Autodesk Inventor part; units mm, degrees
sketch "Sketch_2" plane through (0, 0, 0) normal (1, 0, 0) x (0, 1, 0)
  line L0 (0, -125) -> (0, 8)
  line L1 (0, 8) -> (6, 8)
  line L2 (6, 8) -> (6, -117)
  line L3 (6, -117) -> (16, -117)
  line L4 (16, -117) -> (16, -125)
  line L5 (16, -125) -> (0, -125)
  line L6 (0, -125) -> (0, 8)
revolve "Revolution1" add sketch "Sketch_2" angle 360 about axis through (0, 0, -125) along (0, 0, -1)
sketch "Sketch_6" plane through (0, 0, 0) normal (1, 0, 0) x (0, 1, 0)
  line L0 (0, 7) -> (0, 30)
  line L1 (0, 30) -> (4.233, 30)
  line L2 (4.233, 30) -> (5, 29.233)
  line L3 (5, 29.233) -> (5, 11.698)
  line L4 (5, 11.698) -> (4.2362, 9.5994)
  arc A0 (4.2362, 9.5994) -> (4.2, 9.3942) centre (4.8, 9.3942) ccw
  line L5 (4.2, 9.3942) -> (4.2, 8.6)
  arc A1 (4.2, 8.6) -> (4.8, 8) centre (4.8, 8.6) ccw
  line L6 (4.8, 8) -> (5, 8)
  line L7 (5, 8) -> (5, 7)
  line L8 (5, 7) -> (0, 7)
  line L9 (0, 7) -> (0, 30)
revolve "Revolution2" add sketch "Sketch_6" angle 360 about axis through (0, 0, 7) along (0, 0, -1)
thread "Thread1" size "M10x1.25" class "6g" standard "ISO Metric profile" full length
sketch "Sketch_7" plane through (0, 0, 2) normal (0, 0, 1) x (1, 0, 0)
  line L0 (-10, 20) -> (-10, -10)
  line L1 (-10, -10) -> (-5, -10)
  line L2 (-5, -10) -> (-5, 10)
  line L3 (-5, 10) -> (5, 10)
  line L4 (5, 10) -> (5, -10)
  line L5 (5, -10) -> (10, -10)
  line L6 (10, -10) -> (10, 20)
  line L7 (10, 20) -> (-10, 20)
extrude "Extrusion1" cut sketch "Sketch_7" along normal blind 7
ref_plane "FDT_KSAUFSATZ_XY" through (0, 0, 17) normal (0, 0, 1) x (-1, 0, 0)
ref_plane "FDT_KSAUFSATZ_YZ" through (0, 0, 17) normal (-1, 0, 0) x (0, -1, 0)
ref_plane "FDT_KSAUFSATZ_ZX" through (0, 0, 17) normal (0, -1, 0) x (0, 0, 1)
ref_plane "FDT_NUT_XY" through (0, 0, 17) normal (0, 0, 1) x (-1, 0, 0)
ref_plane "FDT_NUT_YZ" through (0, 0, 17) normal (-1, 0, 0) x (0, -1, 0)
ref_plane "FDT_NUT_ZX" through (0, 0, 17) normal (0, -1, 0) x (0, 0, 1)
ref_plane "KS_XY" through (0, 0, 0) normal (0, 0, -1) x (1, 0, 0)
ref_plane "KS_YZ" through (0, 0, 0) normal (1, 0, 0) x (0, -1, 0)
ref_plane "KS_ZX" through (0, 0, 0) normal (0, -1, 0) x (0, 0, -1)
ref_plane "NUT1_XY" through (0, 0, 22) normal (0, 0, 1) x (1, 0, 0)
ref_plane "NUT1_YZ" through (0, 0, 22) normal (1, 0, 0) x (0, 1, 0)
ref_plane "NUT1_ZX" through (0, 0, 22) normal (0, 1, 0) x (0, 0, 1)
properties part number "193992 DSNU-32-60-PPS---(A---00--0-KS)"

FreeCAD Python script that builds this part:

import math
import FreeCAD as App
import Part
import Sketcher
from FreeCAD import Vector
Q = App.Units.Quantity

doc = App.newDocument("Part")
body = doc.addObject("PartDesign::Body", "Body")

# Sketch on YZ plane
sketch1 = doc.addObject("Sketcher::SketchObject", "Sketch")
body.addObject(sketch1)
sketch1.AttachmentSupport = (doc.YZ_Plane, [""])
sketch1.MapMode = "FlatFace"
sketch1.addGeometry([
    Part.LineSegment(Vector(0, 8, 0), Vector(0, -125, 0)),  # 0
    Part.LineSegment(Vector(0, -125, 0), Vector(16, -125, 0)),  # 1
    Part.LineSegment(Vector(16, -125, 0), Vector(16, -117, 0)),  # 2
    Part.LineSegment(Vector(16, -117, 0), Vector(6, -117, 0)),  # 3
    Part.LineSegment(Vector(6, -117, 0), Vector(6, 8, 0)),  # 4
    Part.LineSegment(Vector(6, 8, 0), Vector(0, 8, 0)),  # 5
], False)
sketch1.addConstraint([
    Sketcher.Constraint("Coincident", 0, 2, 1, 1),
    Sketcher.Constraint("Coincident", 1, 2, 2, 1),
    Sketcher.Constraint("Coincident", 2, 2, 3, 1),
    Sketcher.Constraint("Coincident", 3, 2, 4, 1),
    Sketcher.Constraint("Coincident", 4, 2, 5, 1),
    Sketcher.Constraint("Coincident", 5, 2, 0, 1),
    Sketcher.Constraint("Vertical", 0),
    Sketcher.Constraint("Horizontal", 1),
    Sketcher.Constraint("Vertical", 2),
    Sketcher.Constraint("Horizontal", 3),
    Sketcher.Constraint("Vertical", 4),
    Sketcher.Constraint("Horizontal", 5),
    Sketcher.Constraint("PointOnObject", 0, 2, -2),
    Sketcher.Constraint("DistanceX", 1, 1, 1, 2, 16.0),
    Sketcher.Constraint("DistanceX", 3, 2, 3, 1, 10.0),
    Sketcher.Constraint("DistanceY", 0, 2, 0, 1, 133.0),
    Sketcher.Constraint("DistanceY", 2, 1, 2, 2, 8.0),
    Sketcher.Constraint("DistanceY", 0, 2, -1, 1, 125.0),
])
revolution = doc.addObject("PartDesign::Revolution", "Revolution")
body.addObject(revolution)
revolution.Profile = sketch1
revolution.ReferenceAxis = (sketch1, ["V_Axis"])
revolution.Angle = 360

# Sketch on YZ plane
sketch2 = doc.addObject("Sketcher::SketchObject", "Sketch001")
body.addObject(sketch2)
sketch2.AttachmentSupport = (doc.YZ_Plane, [""])
sketch2.MapMode = "FlatFace"
sketch2.addGeometry([
    Part.LineSegment(Vector(0, 30, 0), Vector(0, 7, 0)),  # 0
    Part.LineSegment(Vector(0, 7, 0), Vector(5, 7, 0)),  # 1
    Part.LineSegment(Vector(5, 7, 0), Vector(5, 8, 0)),  # 2
    Part.LineSegment(Vector(5, 8, 0), Vector(4.8, 8, 0)),  # 3
    Part.ArcOfCircle(Part.Circle(Vector(4.8, 8.6, 0), Vector(0, 0, 1), 0.6), math.radians(180), math.radians(270)),  # 4
    Part.LineSegment(Vector(4.2, 8.6, 0), Vector(4.2, 9.39, 0)),  # 5
    Part.ArcOfCircle(Part.Circle(Vector(4.8, 9.39, 0), Vector(0, 0, 1), 0.6), math.radians(160), math.radians(180)),  # 6
    Part.LineSegment(Vector(4.24, 9.6, 0), Vector(5, 11.7, 0)),  # 7
    Part.LineSegment(Vector(5, 11.7, 0), Vector(5, 29.23, 0)),  # 8
    Part.LineSegment(Vector(5, 29.23, 0), Vector(4.23, 30, 0)),  # 9
    Part.LineSegment(Vector(4.23, 30, 0), Vector(0, 30, 0)),  # 10
], False)
sketch2.addConstraint([
    Sketcher.Constraint("Coincident", 0, 2, 1, 1),
    Sketcher.Constraint("Coincident", 1, 2, 2, 1),
    Sketcher.Constraint("Coincident", 2, 2, 3, 1),
    Sketcher.Constraint("Tangent", 3, 2, 4, 2),
    Sketcher.Constraint("Tangent", 4, 1, 5, 1),
    Sketcher.Constraint("Tangent", 5, 2, 6, 2),
    Sketcher.Constraint("Tangent", 6, 1, 7, 1),
    Sketcher.Constraint("Coincident", 7, 2, 8, 1),
    Sketcher.Constraint("Coincident", 8, 2, 9, 1),
    Sketcher.Constraint("Coincident", 9, 2, 10, 1),
    Sketcher.Constraint("Coincident", 10, 2, 0, 1),
    Sketcher.Constraint("Vertical", 0),
    Sketcher.Constraint("Horizontal", 1),
    Sketcher.Constraint("Vertical", 2),
    Sketcher.Constraint("Horizontal", 3),
    Sketcher.Constraint("Vertical", 5),
    Sketcher.Constraint("Vertical", 8),
    Sketcher.Constraint("Horizontal", 10),
    Sketcher.Constraint("Equal", 4, 6),
    Sketcher.Constraint("PointOnObject", 0, 2, -2),
    Sketcher.Constraint("Vertical", 2, 2, 7, 2),
    Sketcher.Constraint("Radius", 4, 0.6),
    Sketcher.Constraint("DistanceX", 1, 1, 1, 2, 5.0),
    Sketcher.Constraint("DistanceY", 0, 2, 0, 1, 23.0),
    Sketcher.Constraint("DistanceY", 2, 1, 2, 2, 1.0),
    Sketcher.Constraint("Angle", 7, Q("70.0007 deg")),
    Sketcher.Constraint("Angle", 9, Q("135 deg")),
    Sketcher.Constraint("DistanceX", 3, 2, 3, 1, 0.2),
    Sketcher.Constraint("DistanceY", -1, 1, 0, 2, 7.0),
    Sketcher.Constraint("DistanceX", 10, 2, 10, 1, 4.233),
    Sketcher.Constraint("DistanceY", 8, 1, 8, 2, 17.535),
])
revolution2 = doc.addObject("PartDesign::Revolution", "Revolution001")
body.addObject(revolution2)
revolution2.Profile = sketch2
revolution2.ReferenceAxis = (sketch2, ["V_Axis"])
revolution2.Angle = 360

# Sketch on XY plane
sketch3 = doc.addObject("Sketcher::SketchObject", "Sketch002")
body.addObject(sketch3)
sketch3.AttachmentSupport = (doc.XY_Plane, [""])
sketch3.MapMode = "FlatFace"
sketch3.AttachmentOffset = App.Placement(Vector(0, 0, 2), App.Rotation())
sketch3.addGeometry([
    Part.LineSegment(Vector(10, 20, 0), Vector(-10, 20, 0)),  # 0
    Part.LineSegment(Vector(-10, 20, 0), Vector(-10, -10, 0)),  # 1
    Part.LineSegment(Vector(-10, -10, 0), Vector(-5, -10, 0)),  # 2
    Part.LineSegment(Vector(-5, -10, 0), Vector(-5, 10, 0)),  # 3
    Part.LineSegment(Vector(-5, 10, 0), Vector(5, 10, 0)),  # 4
    Part.LineSegment(Vector(5, 10, 0), Vector(5, -10, 0)),  # 5
    Part.LineSegment(Vector(5, -10, 0), Vector(10, -10, 0)),  # 6
    Part.LineSegment(Vector(10, -10, 0), Vector(10, 20, 0)),  # 7
], False)
sketch3.addConstraint([
    Sketcher.Constraint("Coincident", 0, 2, 1, 1),
    Sketcher.Constraint("Coincident", 1, 2, 2, 1),
    Sketcher.Constraint("Coincident", 2, 2, 3, 1),
    Sketcher.Constraint("Coincident", 3, 2, 4, 1),
    Sketcher.Constraint("Coincident", 4, 2, 5, 1),
    Sketcher.Constraint("Coincident", 5, 2, 6, 1),
    Sketcher.Constraint("Coincident", 6, 2, 7, 1),
    Sketcher.Constraint("Coincident", 7, 2, 0, 1),
    Sketcher.Constraint("Horizontal", 0),
    Sketcher.Constraint("Vertical", 1),
    Sketcher.Constraint("Horizontal", 2),
    Sketcher.Constraint("Vertical", 3),
    Sketcher.Constraint("Horizontal", 4),
    Sketcher.Constraint("Vertical", 5),
    Sketcher.Constraint("Horizontal", 6),
    Sketcher.Constraint("Vertical", 7),
    Sketcher.Constraint("Symmetric", 2, 2, 4, 2, -1, 1),
    Sketcher.Constraint("Symmetric", 1, 2, 6, 2, -2),
    Sketcher.Constraint("Equal", 0, 3),
    Sketcher.Constraint("DistanceX", 0, 2, 0, 1, 20.0),
    Sketcher.Constraint("DistanceX", 2, 1, 2, 2, 5.0),
    Sketcher.Constraint("DistanceY", 1, 2, 1, 1, 30.0),
])
pocket1 = doc.addObject("PartDesign::Pocket", "Pocket")
body.addObject(pocket1)
pocket1.Profile = sketch3
pocket1.Length = 7
pocket1.Reversed = True

doc.recompute()
